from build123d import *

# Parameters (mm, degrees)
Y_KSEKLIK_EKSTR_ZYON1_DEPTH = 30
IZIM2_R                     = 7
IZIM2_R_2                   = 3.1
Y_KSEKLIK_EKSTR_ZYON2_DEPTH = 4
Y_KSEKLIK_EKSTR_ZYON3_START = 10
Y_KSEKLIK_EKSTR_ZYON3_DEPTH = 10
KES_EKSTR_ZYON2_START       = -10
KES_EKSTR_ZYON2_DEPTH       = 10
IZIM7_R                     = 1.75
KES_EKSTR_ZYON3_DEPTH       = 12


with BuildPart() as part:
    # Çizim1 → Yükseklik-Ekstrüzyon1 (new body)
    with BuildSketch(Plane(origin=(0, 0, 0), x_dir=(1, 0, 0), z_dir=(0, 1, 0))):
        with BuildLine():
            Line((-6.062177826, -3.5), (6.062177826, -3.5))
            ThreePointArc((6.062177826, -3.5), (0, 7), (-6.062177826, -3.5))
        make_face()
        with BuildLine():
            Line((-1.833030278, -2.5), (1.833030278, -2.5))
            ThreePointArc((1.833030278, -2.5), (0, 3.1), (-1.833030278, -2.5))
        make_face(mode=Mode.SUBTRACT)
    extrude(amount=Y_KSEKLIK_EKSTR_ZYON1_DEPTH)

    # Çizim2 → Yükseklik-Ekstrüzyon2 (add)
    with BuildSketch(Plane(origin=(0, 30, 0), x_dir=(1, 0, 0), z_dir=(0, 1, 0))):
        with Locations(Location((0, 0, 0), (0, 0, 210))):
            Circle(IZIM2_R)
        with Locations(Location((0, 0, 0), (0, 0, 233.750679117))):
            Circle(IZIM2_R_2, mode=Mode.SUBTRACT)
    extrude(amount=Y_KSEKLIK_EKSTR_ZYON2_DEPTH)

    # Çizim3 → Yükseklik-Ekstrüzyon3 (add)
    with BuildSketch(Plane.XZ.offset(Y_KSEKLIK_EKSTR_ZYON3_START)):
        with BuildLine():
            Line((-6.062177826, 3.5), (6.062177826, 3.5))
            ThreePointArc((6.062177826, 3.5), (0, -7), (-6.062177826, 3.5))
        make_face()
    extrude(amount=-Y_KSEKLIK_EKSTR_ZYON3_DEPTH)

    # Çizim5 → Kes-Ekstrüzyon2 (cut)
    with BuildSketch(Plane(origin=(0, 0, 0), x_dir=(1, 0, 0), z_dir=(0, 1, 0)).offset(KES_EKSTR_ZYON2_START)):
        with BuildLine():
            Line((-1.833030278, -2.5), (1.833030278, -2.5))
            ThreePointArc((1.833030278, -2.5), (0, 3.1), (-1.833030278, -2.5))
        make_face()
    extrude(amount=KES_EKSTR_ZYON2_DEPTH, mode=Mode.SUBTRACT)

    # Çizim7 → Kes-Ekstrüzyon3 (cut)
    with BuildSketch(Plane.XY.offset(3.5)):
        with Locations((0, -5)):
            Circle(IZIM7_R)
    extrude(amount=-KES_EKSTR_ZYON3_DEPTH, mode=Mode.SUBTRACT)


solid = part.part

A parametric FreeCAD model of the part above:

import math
import FreeCAD as App
import Part
import Sketcher
from FreeCAD import Vector
Q = App.Units.Quantity

doc = App.newDocument("Part")
body = doc.addObject("PartDesign::Body", "Body")

# Sketch on XZ plane
sketch1 = body.newObject("Sketcher::SketchObject", "Sketch")
sketch1.AttachmentSupport = (doc.getObject("XZ_Plane"), [""])
sketch1.MapMode = "FlatFace"
sketch1.addGeometry(Part.LineSegment(Vector(-6.1, 3.5, 0), Vector(6.1, 3.5, 0)), False)
sketch1.addGeometry(Part.ArcOfCircle(Part.Circle(Vector(0, 0, 0), Vector(0, 0, 1), 7), math.radians(150), math.radians(390)), False)
sketch1.addGeometry(Part.LineSegment(Vector(1.8, 2.5, 0), Vector(-1.8, 2.5, 0)), False)
sketch1.addGeometry(Part.ArcOfCircle(Part.Circle(Vector(0, 0, 0), Vector(0, 0, 1), 3.1), math.radians(126), math.radians(414)), False)
sketch1.addConstraint(Sketcher.Constraint("Coincident", 0, 1, 1, 1))
sketch1.addConstraint(Sketcher.Constraint("Coincident", 1, 2, 0, 2))
sketch1.addConstraint(Sketcher.Constraint("Coincident", 2, 1, 3, 2))
sketch1.addConstraint(Sketcher.Constraint("Coincident", 3, 1, 2, 2))
sketch1.addConstraint(Sketcher.Constraint("Horizontal", 0))
sketch1.addConstraint(Sketcher.Constraint("Horizontal", 2))
sketch1.addConstraint(Sketcher.Constraint("Coincident", 1, 3, -1, 1))
sketch1.addConstraint(Sketcher.Constraint("Coincident", 3, 3, -1, 1))
sketch1.addConstraint(Sketcher.Constraint("Radius", 1, Q("7 mm")))
sketch1.addConstraint(Sketcher.Constraint("Radius", 3, Q("3.1 mm")))
sketch1.addConstraint(Sketcher.Constraint("DistanceY", 2, 1, 1, 2, Q("1 mm")))
sketch1.addConstraint(Sketcher.Constraint("DistanceY", -1, 1, 0, 1, Q("3.5 mm")))
pad1 = body.newObject("PartDesign::Pad", "Pad")
pad1.Profile = sketch1
pad1.Length = 30
pad1.Reversed = True

# Sketch on XZ plane
sketch2 = body.newObject("Sketcher::SketchObject", "Sketch001")
sketch2.AttachmentSupport = (doc.getObject("XZ_Plane"), [""])
sketch2.MapMode = "FlatFace"
sketch2.AttachmentOffset = App.Placement(Vector(0, 0, -30), App.Rotation())
sketch2.addGeometry(Part.Circle(Vector(0, 0, 0), Vector(0, 0, 1), 7), False)
sketch2.addGeometry(Part.Circle(Vector(0, 0, 0), Vector(0, 0, 1), 3.1), False)
sketch2.addConstraint(Sketcher.Constraint("Coincident", 0, 3, -1, 1))
sketch2.addConstraint(Sketcher.Constraint("Coincident", 1, 3, -1, 1))
sketch2.addConstraint(Sketcher.Constraint("Diameter", 0, Q("14 mm")))
sketch2.addConstraint(Sketcher.Constraint("Diameter", 1, Q("6.2 mm")))
pad2 = body.newObject("PartDesign::Pad", "Pad001")
pad2.Profile = sketch2
pad2.Length = 4
pad2.Reversed = True

# Sketch on XZ plane
sketch3 = body.newObject("Sketcher::SketchObject", "Sketch002")
sketch3.AttachmentSupport = (doc.getObject("XZ_Plane"), [""])
sketch3.MapMode = "FlatFace"
sketch3.AttachmentOffset = App.Placement(Vector(0, 0, 10), App.Rotation())
sketch3.addGeometry(Part.LineSegment(Vector(6, 4, 0), Vector(-6, 4, 0)), False)
sketch3.addGeometry(Part.ArcOfCircle(Part.Circle(Vector(0, 0, 0), Vector(0, 0, 1), 7), math.radians(150), math.radians(390)), False)
sketch3.addConstraint(Sketcher.Constraint("Coincident", 0, 1, 1, 2))
sketch3.addConstraint(Sketcher.Constraint("Coincident", 1, 1, 0, 2))
sketch3.addConstraint(Sketcher.Constraint("Horizontal", 0))
sketch3.addConstraint(Sketcher.Constraint("Coincident", 1, 3, -1, 1))
sketch3.addConstraint(Sketcher.Constraint("Radius", 1, Q("7 mm")))
sketch3.addConstraint(Sketcher.Constraint("DistanceY", -1, 1, 0, 1, Q("3.5 mm")))
pad3 = body.newObject("PartDesign::Pad", "Pad002")
pad3.Profile = sketch3
pad3.Length = 10
pad3.Reversed = True

# Sketch on XZ plane
sketch4 = body.newObject("Sketcher::SketchObject", "Sketch003")
sketch4.AttachmentSupport = (doc.getObject("XZ_Plane"), [""])
sketch4.MapMode = "FlatFace"
sketch4.AttachmentOffset = App.Placement(Vector(0, 0, 10), App.Rotation())
sketch4.addGeometry(Part.LineSegment(Vector(-1.8, 2.5, 0), Vector(1.8, 2.5, 0)), False)
sketch4.addGeometry(Part.ArcOfCircle(Part.Circle(Vector(0, 0, 0), Vector(0, 0, 1), 3.1), math.radians(126), math.radians(414)), False)
sketch4.addConstraint(Sketcher.Constraint("Coincident", 0, 1, 1, 1))
sketch4.addConstraint(Sketcher.Constraint("Coincident", 1, 2, 0, 2))
sketch4.addConstraint(Sketcher.Constraint("Horizontal", 0))
sketch4.addConstraint(Sketcher.Constraint("Coincident", 1, 3, -1, 1))
sketch4.addConstraint(Sketcher.Constraint("Radius", 1, Q("3.1 mm")))
sketch4.addConstraint(Sketcher.Constraint("DistanceY", -1, 1, 0, 1, Q("2.5 mm")))
pocket1 = body.newObject("PartDesign::Pocket", "Pocket")
pocket1.Profile = sketch4
pocket1.Length = 10

# Sketch on XY plane
sketch5 = body.newObject("Sketcher::SketchObject", "Sketch004")
sketch5.AttachmentSupport = (doc.getObject("XY_Plane"), [""])
sketch5.MapMode = "FlatFace"
sketch5.AttachmentOffset = App.Placement(Vector(0, 0, 3.5), App.Rotation())
sketch5.addGeometry(Part.Circle(Vector(0, -5, 0), Vector(0, 0, 1), 1.8), False)
sketch5.addConstraint(Sketcher.Constraint("PointOnObject", 0, 3, -2))
sketch5.addConstraint(Sketcher.Constraint("Diameter", 0, Q("3.5 mm")))
sketch5.addConstraint(Sketcher.Constraint("DistanceY", 0, 3, -1, 1, Q("5 mm")))
pocket2 = body.newObject("PartDesign::Pocket", "Pocket001")
pocket2.Profile = sketch5
pocket2.Length = 12

doc.recompute()
